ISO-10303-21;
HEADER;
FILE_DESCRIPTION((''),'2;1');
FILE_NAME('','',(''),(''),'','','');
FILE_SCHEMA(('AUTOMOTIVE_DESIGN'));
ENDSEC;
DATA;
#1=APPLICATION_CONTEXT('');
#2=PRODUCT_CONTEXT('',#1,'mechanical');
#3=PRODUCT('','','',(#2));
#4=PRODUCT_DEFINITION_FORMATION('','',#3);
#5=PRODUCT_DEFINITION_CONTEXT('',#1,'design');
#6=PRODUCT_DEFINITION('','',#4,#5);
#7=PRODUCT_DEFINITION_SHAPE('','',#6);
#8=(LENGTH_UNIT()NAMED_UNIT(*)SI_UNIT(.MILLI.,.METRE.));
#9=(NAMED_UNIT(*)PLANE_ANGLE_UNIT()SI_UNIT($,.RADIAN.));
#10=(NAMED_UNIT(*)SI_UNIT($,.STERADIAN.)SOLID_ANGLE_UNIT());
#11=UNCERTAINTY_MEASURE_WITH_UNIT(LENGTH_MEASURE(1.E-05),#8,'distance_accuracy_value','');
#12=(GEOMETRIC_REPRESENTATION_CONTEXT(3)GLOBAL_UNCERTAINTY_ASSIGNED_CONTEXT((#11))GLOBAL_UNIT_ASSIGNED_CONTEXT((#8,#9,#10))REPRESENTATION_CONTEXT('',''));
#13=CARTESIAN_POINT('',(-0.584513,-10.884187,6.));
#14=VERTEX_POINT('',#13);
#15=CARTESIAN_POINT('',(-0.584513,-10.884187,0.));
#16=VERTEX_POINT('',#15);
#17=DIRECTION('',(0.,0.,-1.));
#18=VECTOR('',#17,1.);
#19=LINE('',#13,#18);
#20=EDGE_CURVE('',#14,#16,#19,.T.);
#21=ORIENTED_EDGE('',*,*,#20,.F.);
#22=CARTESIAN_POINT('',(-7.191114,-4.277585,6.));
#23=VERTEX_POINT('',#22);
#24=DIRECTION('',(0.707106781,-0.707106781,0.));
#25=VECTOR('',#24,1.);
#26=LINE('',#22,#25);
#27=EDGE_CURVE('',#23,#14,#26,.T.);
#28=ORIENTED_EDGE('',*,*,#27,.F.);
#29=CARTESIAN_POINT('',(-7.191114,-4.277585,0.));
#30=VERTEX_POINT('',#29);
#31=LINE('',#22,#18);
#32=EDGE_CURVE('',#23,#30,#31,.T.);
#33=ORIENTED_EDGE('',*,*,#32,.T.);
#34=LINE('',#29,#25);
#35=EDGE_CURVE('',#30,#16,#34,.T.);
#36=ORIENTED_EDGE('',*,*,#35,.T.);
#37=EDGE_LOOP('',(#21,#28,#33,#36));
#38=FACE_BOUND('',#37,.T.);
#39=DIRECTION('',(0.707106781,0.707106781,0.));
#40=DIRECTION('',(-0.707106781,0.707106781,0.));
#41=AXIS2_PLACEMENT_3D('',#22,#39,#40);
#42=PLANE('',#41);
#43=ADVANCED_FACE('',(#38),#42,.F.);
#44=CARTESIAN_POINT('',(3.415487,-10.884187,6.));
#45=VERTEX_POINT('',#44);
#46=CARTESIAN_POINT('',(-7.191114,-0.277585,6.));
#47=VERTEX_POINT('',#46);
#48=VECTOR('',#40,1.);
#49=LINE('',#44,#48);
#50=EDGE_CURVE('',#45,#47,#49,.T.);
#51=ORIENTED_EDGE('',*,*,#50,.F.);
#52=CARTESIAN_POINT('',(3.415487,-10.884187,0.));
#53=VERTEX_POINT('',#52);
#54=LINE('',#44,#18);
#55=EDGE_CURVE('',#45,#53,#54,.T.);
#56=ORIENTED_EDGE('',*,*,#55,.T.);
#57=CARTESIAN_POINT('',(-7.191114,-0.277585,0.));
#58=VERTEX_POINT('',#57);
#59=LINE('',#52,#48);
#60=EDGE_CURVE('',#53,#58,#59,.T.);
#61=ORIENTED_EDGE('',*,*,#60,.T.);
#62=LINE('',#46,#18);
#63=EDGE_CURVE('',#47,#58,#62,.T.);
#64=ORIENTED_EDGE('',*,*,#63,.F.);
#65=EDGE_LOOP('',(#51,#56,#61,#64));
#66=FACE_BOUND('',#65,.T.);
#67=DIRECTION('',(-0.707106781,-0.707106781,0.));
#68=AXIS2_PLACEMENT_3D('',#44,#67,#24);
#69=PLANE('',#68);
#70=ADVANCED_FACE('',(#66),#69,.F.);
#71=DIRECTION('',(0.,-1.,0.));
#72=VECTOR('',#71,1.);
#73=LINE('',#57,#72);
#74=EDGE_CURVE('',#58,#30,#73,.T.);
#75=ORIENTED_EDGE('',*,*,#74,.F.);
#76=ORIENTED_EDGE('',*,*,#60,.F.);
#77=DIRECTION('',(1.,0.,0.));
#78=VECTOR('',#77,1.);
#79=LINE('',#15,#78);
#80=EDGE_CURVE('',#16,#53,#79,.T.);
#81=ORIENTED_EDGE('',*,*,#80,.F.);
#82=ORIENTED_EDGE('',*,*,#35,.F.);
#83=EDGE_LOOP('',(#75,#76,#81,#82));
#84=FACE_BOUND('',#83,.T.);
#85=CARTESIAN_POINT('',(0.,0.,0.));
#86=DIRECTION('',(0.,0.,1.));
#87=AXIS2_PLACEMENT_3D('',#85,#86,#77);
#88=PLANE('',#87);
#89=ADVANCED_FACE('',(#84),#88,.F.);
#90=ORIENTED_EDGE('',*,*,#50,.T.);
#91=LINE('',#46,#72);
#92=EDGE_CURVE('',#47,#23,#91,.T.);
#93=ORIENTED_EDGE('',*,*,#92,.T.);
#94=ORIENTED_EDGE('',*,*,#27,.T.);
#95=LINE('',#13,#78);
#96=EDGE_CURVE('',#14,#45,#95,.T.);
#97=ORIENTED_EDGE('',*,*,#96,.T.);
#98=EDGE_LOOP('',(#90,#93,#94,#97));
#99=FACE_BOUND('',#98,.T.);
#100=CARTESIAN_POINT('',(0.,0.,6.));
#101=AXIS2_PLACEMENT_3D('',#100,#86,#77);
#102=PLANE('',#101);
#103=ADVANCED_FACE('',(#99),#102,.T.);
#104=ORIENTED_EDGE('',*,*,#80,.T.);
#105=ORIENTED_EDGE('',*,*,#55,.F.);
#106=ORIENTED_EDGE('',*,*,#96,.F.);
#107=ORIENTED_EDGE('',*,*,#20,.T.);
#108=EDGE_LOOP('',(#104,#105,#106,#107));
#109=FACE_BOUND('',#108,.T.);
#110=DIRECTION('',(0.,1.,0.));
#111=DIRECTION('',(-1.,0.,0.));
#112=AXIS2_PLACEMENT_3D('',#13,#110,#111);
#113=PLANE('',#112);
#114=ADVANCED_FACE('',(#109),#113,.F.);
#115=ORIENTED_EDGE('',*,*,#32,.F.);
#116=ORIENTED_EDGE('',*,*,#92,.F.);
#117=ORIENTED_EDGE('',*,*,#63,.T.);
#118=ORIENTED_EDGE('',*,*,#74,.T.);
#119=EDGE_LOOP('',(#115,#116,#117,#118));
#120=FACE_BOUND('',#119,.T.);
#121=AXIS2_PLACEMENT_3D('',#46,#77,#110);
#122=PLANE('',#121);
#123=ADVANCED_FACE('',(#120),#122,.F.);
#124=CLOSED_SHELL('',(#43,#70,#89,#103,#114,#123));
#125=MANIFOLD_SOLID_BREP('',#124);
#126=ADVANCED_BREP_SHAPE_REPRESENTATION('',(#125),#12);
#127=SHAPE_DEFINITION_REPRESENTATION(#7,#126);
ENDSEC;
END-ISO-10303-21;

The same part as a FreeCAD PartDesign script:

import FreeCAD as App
import Part
import Sketcher

V = App.Vector

doc = App.newDocument("Part")
body = doc.addObject("PartDesign::Body", "Body")

# Sketch on XY plane
sketch1 = body.newObject("Sketcher::SketchObject", "Sketch")
sketch1.AttachmentSupport = (doc.getObject("XY_Plane"), [""])
sketch1.MapMode = "FlatFace"
sketch1.addGeometry(Part.LineSegment(V(-7.2, -0.3, 0), V(-7.2, -4.3, 0)), False)
sketch1.addGeometry(Part.LineSegment(V(-7.2, -4.3, 0), V(-0.6, -10.9, 0)), False)
sketch1.addGeometry(Part.LineSegment(V(-0.6, -10.9, 0), V(3.4, -10.9, 0)), False)
sketch1.addGeometry(Part.LineSegment(V(3.4, -10.9, 0), V(-7.2, -0.3, 0)), False)
sketch1.addConstraint(Sketcher.Constraint("Coincident", 0, 2, 1, 1))
sketch1.addConstraint(Sketcher.Constraint("Coincident", 1, 2, 2, 1))
sketch1.addConstraint(Sketcher.Constraint("Coincident", 2, 2, 3, 1))
sketch1.addConstraint(Sketcher.Constraint("Coincident", 3, 2, 0, 1))
sketch1.addConstraint(Sketcher.Constraint("Vertical", 0))
sketch1.addConstraint(Sketcher.Constraint("Horizontal", 2))
sketch1.addConstraint(Sketcher.Constraint("Parallel", 1, 3))
sketch1.addConstraint(Sketcher.Constraint("Equal", 2, 0))
sketch1.addConstraint(Sketcher.Constraint("DistanceX", 2, 1, 2, 2, 4.0))
sketch1.addConstraint(Sketcher.Constraint("Distance", 3, 15.0))
sketch1.addConstraint(Sketcher.Constraint("DistanceX", 0, 2, -1, 1, 7.191114))
sketch1.addConstraint(Sketcher.Constraint("DistanceY", 0, 2, -1, 1, 4.277585))
pad1 = body.newObject("PartDesign::Pad", "Pad")
pad1.Profile = sketch1
pad1.Length = 6

doc.recompute()
